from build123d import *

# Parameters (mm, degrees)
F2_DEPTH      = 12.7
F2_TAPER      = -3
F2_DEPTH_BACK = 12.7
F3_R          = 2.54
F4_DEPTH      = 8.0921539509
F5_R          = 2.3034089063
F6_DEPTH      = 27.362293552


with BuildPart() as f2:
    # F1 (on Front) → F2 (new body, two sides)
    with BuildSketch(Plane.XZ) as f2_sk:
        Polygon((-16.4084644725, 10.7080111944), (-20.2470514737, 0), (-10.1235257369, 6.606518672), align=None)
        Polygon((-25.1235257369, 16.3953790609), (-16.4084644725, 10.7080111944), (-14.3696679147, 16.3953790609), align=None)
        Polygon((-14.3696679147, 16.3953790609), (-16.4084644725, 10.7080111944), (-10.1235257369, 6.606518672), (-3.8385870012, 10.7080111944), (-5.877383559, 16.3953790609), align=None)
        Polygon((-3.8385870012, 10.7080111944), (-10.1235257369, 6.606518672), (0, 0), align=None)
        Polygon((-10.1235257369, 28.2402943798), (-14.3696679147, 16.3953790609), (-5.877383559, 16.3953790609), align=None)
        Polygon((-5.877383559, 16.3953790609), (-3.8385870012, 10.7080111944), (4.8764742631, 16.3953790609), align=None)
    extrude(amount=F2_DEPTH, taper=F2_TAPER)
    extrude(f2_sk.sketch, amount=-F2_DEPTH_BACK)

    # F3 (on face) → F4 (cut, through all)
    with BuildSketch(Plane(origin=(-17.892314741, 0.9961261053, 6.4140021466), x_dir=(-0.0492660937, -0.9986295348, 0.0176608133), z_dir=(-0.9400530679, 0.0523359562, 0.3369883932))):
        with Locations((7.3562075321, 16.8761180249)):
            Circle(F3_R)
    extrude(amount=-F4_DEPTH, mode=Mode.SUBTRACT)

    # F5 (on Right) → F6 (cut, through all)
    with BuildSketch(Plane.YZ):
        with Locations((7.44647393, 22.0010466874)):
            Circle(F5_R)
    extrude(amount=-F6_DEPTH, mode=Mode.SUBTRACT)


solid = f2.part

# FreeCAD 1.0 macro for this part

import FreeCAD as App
import Part
import Sketcher
Q = App.Units.Quantity

doc = App.newDocument("Part")
params = doc.addObject("Spreadsheet::Sheet", "Params")
for row, (alias, value) in enumerate([
    ("pad1_length", "0.5 in"),
    ("pad1_taper", "3 deg"),
    ("pad2_length", "0.5 in"),
    ("sketch2_diameter", "0.2 in"),
    ("pocket1_length", "8.092154 mm"),
], start=1):
    params.set(f"A{row}", alias)
    params.set(f"B{row}", "=" + value)
    params.setAlias(f"B{row}", alias)

body = doc.addObject("PartDesign::Body", "Body")

# Sketch on XZ plane
sketch1 = body.newObject("Sketcher::SketchObject", "Sketch")
sketch1.AttachmentSupport = (doc.getObject("XZ_Plane"), [""])
sketch1.MapMode = "FlatFace"
sketch1.addGeometry(Part.LineSegment(App.Vector(-16, 11, 0), App.Vector(-20, 0, 0)), False)
sketch1.addGeometry(Part.LineSegment(App.Vector(-20, 0, 0), App.Vector(-10, 7, 0)), False)
sketch1.addGeometry(Part.LineSegment(App.Vector(-10, 7, 0), App.Vector(0, 0, 0)), False)
sketch1.addGeometry(Part.LineSegment(App.Vector(0, 0, 0), App.Vector(-4, 11, 0)), False)
sketch1.addGeometry(Part.LineSegment(App.Vector(-4, 11, 0), App.Vector(5, 16, 0)), False)
sketch1.addGeometry(Part.LineSegment(App.Vector(5, 16, 0), App.Vector(-6, 16, 0)), False)
sketch1.addGeometry(Part.LineSegment(App.Vector(-6, 16, 0), App.Vector(-10, 28, 0)), False)
sketch1.addGeometry(Part.LineSegment(App.Vector(-10, 28, 0), App.Vector(-14, 16, 0)), False)
sketch1.addGeometry(Part.LineSegment(App.Vector(-14, 16, 0), App.Vector(-25, 16, 0)), False)
sketch1.addGeometry(Part.LineSegment(App.Vector(-25, 16, 0), App.Vector(-16, 11, 0)), False)
sketch1.addConstraint(Sketcher.Constraint("Coincident", 0, 2, 1, 1))
sketch1.addConstraint(Sketcher.Constraint("Coincident", 1, 2, 2, 1))
sketch1.addConstraint(Sketcher.Constraint("Coincident", 2, 2, 3, 1))
sketch1.addConstraint(Sketcher.Constraint("Coincident", 3, 2, 4, 1))
sketch1.addConstraint(Sketcher.Constraint("Coincident", 4, 2, 5, 1))
sketch1.addConstraint(Sketcher.Constraint("Coincident", 5, 2, 6, 1))
sketch1.addConstraint(Sketcher.Constraint("Coincident", 6, 2, 7, 1))
sketch1.addConstraint(Sketcher.Constraint("Coincident", 7, 2, 8, 1))
sketch1.addConstraint(Sketcher.Constraint("Coincident", 8, 2, 9, 1))
sketch1.addConstraint(Sketcher.Constraint("Coincident", 9, 2, 0, 1))
sketch1.addConstraint(Sketcher.Constraint("Horizontal", 5))
sketch1.addConstraint(Sketcher.Constraint("Horizontal", 8))
sketch1.addConstraint(Sketcher.Constraint("Coincident", 2, 2, -1, 1))
sketch1.addConstraint(Sketcher.Constraint("PointOnObject", 0, 2, -1))
sketch1.addConstraint(Sketcher.Constraint("Parallel", 1, 4))
sketch1.addConstraint(Sketcher.Constraint("Parallel", 3, 6))
sketch1.addConstraint(Sketcher.Constraint("Parallel", 0, 7))
sketch1.addConstraint(Sketcher.Constraint("Parallel", 2, 9))
sketch1.addConstraint(Sketcher.Constraint("Horizontal", 5, 2, 7, 2))
sketch1.addConstraint(Sketcher.Constraint("Horizontal", 3, 2, 9, 2))
sketch1.addConstraint(Sketcher.Constraint("Vertical", 1, 2, 6, 2))
sketch1.addConstraint(Sketcher.Constraint("Equal", 5, 8))
sketch1.addConstraint(Sketcher.Constraint("Equal", 1, 2))
sketch1.addConstraint(Sketcher.Constraint("Distance", 1, 12.088501))
sketch1.addConstraint(Sketcher.Constraint("DistanceX", 1, 2, 4, 2, 15.0))
sketch1.addConstraint(Sketcher.Constraint("DistanceX", 5, 2, 5, 1, 10.753858))
sketch1.addConstraint(Sketcher.Constraint("DistanceX", 0, 2, -1, 1, 20.247051))
sketch1.addConstraint(Sketcher.Constraint("DistanceY", -1, 1, 3, 2, 10.708011))
sketch1.addConstraint(Sketcher.Constraint("DistanceY", -1, 1, 4, 2, 16.395379))
pad1 = body.newObject("PartDesign::Pad", "Pad")
pad1.Profile = sketch1
pad1.setExpression("Length", "Params.pad1_length")
pad1.setExpression("TaperAngle", "Params.pad1_taper")
pad2 = body.newObject("PartDesign::Pad", "Pad001")
pad2.Profile = sketch1
pad2.setExpression("Length", "Params.pad2_length")
pad2.Reversed = True

# Sketch on an angled plane
sketch2 = body.newObject("Sketcher::SketchObject", "Sketch001")
sketch2.Placement = App.Placement(App.Vector(-17.892315, 0.996126, 6.414002), App.Rotation(App.Vector(-0.049266094, -0.998629535, 0.017660813), App.Vector(0.337450858, 0, 0.941343146), App.Vector(-0.940053068, 0.052335956, 0.336988393), "ZXY"))
sketch2.addGeometry(Part.Circle(App.Vector(7.4, 16.9, 0), App.Vector(0, 0, 1), 2.5), False)
sketch2.addConstraint(Sketcher.Constraint("Diameter", 0, Q("0.2 in")))
sketch2.addConstraint(Sketcher.Constraint("DistanceY", -1, 1, 0, 3, 16.876118))
sketch2.addConstraint(Sketcher.Constraint("DistanceX", -1, 1, 0, 3, 7.356208))
sketch2.setExpression("Constraints[0]", "Params.sketch2_diameter")
pocket1 = body.newObject("PartDesign::Pocket", "Pocket")
pocket1.Profile = sketch2
pocket1.setExpression("Length", "Params.pocket1_length")

# Sketch on YZ plane
sketch3 = body.newObject("Sketcher::SketchObject", "Sketch002")
sketch3.AttachmentSupport = (doc.getObject("YZ_Plane"), [""])
sketch3.MapMode = "FlatFace"
sketch3.addGeometry(Part.Circle(App.Vector(7.4, 22, 0), App.Vector(0, 0, 1), 2.3), False)
sketch3.addConstraint(Sketcher.Constraint("Diameter", 0, 4.606818))
sketch3.addConstraint(Sketcher.Constraint("DistanceX", -1, 1, 0, 3, 7.446474))
sketch3.addConstraint(Sketcher.Constraint("DistanceY", -1, 1, 0, 3, 22.001047))
pocket2 = body.newObject("PartDesign::Pocket", "Pocket001")
pocket2.Profile = sketch3
pocket2.Type = "ThroughAll"

doc.recompute()
